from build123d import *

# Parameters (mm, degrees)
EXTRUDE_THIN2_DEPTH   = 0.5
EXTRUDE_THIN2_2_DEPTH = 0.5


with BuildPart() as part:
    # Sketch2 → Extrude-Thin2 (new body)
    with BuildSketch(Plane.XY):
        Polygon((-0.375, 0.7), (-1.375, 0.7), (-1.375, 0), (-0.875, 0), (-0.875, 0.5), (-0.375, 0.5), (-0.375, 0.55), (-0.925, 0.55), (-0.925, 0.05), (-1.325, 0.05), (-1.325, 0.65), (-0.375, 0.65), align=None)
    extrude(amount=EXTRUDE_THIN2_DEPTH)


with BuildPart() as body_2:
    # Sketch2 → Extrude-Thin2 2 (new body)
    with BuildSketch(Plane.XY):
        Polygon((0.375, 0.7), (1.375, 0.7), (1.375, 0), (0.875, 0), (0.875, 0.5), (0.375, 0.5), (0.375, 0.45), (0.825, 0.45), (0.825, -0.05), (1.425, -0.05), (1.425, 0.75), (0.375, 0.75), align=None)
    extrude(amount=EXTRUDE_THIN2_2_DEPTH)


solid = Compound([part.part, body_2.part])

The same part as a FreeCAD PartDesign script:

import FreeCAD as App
import Part
import Sketcher
from FreeCAD import Vector

doc = App.newDocument("Part")
body = doc.addObject("PartDesign::Body", "Body")

sketch1 = doc.addObject("Sketcher::SketchObject", "Sketch")
body.addObject(sketch1)
sketch1.AttachmentSupport = (doc.XY_Plane, [""])
sketch1.MapMode = "FlatFace"
sketch1.addGeometry([
    Part.LineSegment(Vector(-0.375, 0.7, 0), Vector(-1.375, 0.7, 0)),
    Part.LineSegment(Vector(-1.375, 0.7, 0), Vector(-1.375, 0, 0)),
    Part.LineSegment(Vector(-1.375, 0, 0), Vector(-0.875, 0, 0)),
    Part.LineSegment(Vector(-0.875, 0, 0), Vector(-0.875, 0.5, 0)),
    Part.LineSegment(Vector(-0.875, 0.5, 0), Vector(-0.375, 0.5, 0)),
    Part.LineSegment(Vector(-0.375, 0.5, 0), Vector(-0.375, 0.55, 0)),
    Part.LineSegment(Vector(-0.375, 0.55, 0), Vector(-0.925, 0.55, 0)),
    Part.LineSegment(Vector(-0.925, 0.55, 0), Vector(-0.925, 0.05, 0)),
    Part.LineSegment(Vector(-0.925, 0.05, 0), Vector(-1.325, 0.05, 0)),
    Part.LineSegment(Vector(-1.325, 0.05, 0), Vector(-1.325, 0.65, 0)),
    Part.LineSegment(Vector(-1.325, 0.65, 0), Vector(-0.375, 0.65, 0)),
    Part.LineSegment(Vector(-0.375, 0.65, 0), Vector(-0.375, 0.7, 0)),
], False)
sketch1.addConstraint([
    Sketcher.Constraint("Coincident", 0, 2, 1, 1),
    Sketcher.Constraint("Coincident", 1, 2, 2, 1),
    Sketcher.Constraint("Coincident", 2, 2, 3, 1),
    Sketcher.Constraint("Coincident", 3, 2, 4, 1),
    Sketcher.Constraint("Coincident", 4, 2, 5, 1),
    Sketcher.Constraint("Coincident", 5, 2, 6, 1),
    Sketcher.Constraint("Coincident", 6, 2, 7, 1),
    Sketcher.Constraint("Coincident", 7, 2, 8, 1),
    Sketcher.Constraint("Coincident", 8, 2, 9, 1),
    Sketcher.Constraint("Coincident", 9, 2, 10, 1),
    Sketcher.Constraint("Coincident", 10, 2, 11, 1),
    Sketcher.Constraint("Coincident", 11, 2, 0, 1),
    Sketcher.Constraint("Horizontal", 0),
    Sketcher.Constraint("Vertical", 1),
    Sketcher.Constraint("Horizontal", 2),
    Sketcher.Constraint("Vertical", 3),
    Sketcher.Constraint("Horizontal", 4),
    Sketcher.Constraint("Vertical", 5),
    Sketcher.Constraint("Horizontal", 6),
    Sketcher.Constraint("Vertical", 7),
    Sketcher.Constraint("Horizontal", 8),
    Sketcher.Constraint("Vertical", 9),
    Sketcher.Constraint("Horizontal", 10),
    Sketcher.Constraint("Vertical", 11),
    Sketcher.Constraint("PointOnObject", 1, 2, -1),
    Sketcher.Constraint("Vertical", 5, 2, 10, 2),
    Sketcher.Constraint("Equal", 2, 4),
    Sketcher.Constraint("Equal", 4, 3),
    Sketcher.Constraint("Equal", 3, 7),
    Sketcher.Constraint("Equal", 5, 11),
    Sketcher.Constraint("DistanceX", 0, 2, 0, 1, 1.0),
    Sketcher.Constraint("DistanceX", 8, 2, 8, 1, 0.4),
    Sketcher.Constraint("DistanceY", 1, 2, 1, 1, 0.7),
    Sketcher.Constraint("DistanceY", 9, 1, 9, 2, 0.6),
    Sketcher.Constraint("DistanceX", 6, 2, 6, 1, 0.55),
    Sketcher.Constraint("DistanceX", 0, 2, -1, 1, 1.375),
])
pad1 = doc.addObject("PartDesign::Pad", "Pad")
body.addObject(pad1)
pad1.Profile = sketch1
pad1.Length = 0.5
body2 = doc.addObject("PartDesign::Body", "Body001")

sketch2 = doc.addObject("Sketcher::SketchObject", "Sketch001")
body2.addObject(sketch2)
sketch2.AttachmentSupport = (doc.getObject("XY_Plane001"), [""])
sketch2.MapMode = "FlatFace"
sketch2.addGeometry([
    Part.LineSegment(Vector(0.38, 0.7, 0), Vector(1.38, 0.7, 0)),
    Part.LineSegment(Vector(1.38, 0.7, 0), Vector(1.38, 0, 0)),
    Part.LineSegment(Vector(1.38, 0, 0), Vector(0.88, 0, 0)),
    Part.LineSegment(Vector(0.88, 0, 0), Vector(0.88, 0.5, 0)),
    Part.LineSegment(Vector(0.88, 0.5, 0), Vector(0.38, 0.5, 0)),
    Part.LineSegment(Vector(0.38, 0.5, 0), Vector(0.38, 0.45, 0)),
    Part.LineSegment(Vector(0.38, 0.45, 0), Vector(0.82, 0.45, 0)),
    Part.LineSegment(Vector(0.82, 0.45, 0), Vector(0.82, -0.05, 0)),
    Part.LineSegment(Vector(0.82, -0.05, 0), Vector(1.43, -0.05, 0)),
    Part.LineSegment(Vector(1.43, -0.05, 0), Vector(1.43, 0.75, 0)),
    Part.LineSegment(Vector(1.43, 0.75, 0), Vector(0.38, 0.75, 0)),
    Part.LineSegment(Vector(0.38, 0.75, 0), Vector(0.38, 0.7, 0)),
], False)
sketch2.addConstraint([
    Sketcher.Constraint("Coincident", 0, 2, 1, 1),
    Sketcher.Constraint("Coincident", 1, 2, 2, 1),
    Sketcher.Constraint("Coincident", 2, 2, 3, 1),
    Sketcher.Constraint("Coincident", 3, 2, 4, 1),
    Sketcher.Constraint("Coincident", 4, 2, 5, 1),
    Sketcher.Constraint("Coincident", 5, 2, 6, 1),
    Sketcher.Constraint("Coincident", 6, 2, 7, 1),
    Sketcher.Constraint("Coincident", 7, 2, 8, 1),
    Sketcher.Constraint("Coincident", 8, 2, 9, 1),
    Sketcher.Constraint("Coincident", 9, 2, 10, 1),
    Sketcher.Constraint("Coincident", 10, 2, 11, 1),
    Sketcher.Constraint("Coincident", 11, 2, 0, 1),
    Sketcher.Constraint("Horizontal", 0),
    Sketcher.Constraint("Vertical", 1),
    Sketcher.Constraint("Horizontal", 2),
    Sketcher.Constraint("Vertical", 3),
    Sketcher.Constraint("Horizontal", 4),
    Sketcher.Constraint("Vertical", 5),
    Sketcher.Constraint("Horizontal", 6),
    Sketcher.Constraint("Vertical", 7),
    Sketcher.Constraint("Horizontal", 8),
    Sketcher.Constraint("Vertical", 9),
    Sketcher.Constraint("Horizontal", 10),
    Sketcher.Constraint("Vertical", 11),
    Sketcher.Constraint("PointOnObject", 1, 2, -1),
    Sketcher.Constraint("Vertical", 5, 2, 10, 2),
    Sketcher.Constraint("Equal", 2, 4),
    Sketcher.Constraint("Equal", 4, 3),
    Sketcher.Constraint("Equal", 3, 7),
    Sketcher.Constraint("Equal", 5, 11),
    Sketcher.Constraint("DistanceX", 0, 1, 0, 2, 1.0),
    Sketcher.Constraint("DistanceX", 8, 1, 8, 2, 0.6),
    Sketcher.Constraint("DistanceY", 1, 2, 1, 1, 0.7),
    Sketcher.Constraint("DistanceY", 9, 1, 9, 2, 0.8),
    Sketcher.Constraint("DistanceX", 6, 1, 6, 2, 0.45),
    Sketcher.Constraint("DistanceX", -1, 1, 0, 2, 1.375),
])
pad2 = doc.addObject("PartDesign::Pad", "Pad001")
body2.addObject(pad2)
pad2.Profile = sketch2
pad2.Length = 0.5

doc.recompute()
